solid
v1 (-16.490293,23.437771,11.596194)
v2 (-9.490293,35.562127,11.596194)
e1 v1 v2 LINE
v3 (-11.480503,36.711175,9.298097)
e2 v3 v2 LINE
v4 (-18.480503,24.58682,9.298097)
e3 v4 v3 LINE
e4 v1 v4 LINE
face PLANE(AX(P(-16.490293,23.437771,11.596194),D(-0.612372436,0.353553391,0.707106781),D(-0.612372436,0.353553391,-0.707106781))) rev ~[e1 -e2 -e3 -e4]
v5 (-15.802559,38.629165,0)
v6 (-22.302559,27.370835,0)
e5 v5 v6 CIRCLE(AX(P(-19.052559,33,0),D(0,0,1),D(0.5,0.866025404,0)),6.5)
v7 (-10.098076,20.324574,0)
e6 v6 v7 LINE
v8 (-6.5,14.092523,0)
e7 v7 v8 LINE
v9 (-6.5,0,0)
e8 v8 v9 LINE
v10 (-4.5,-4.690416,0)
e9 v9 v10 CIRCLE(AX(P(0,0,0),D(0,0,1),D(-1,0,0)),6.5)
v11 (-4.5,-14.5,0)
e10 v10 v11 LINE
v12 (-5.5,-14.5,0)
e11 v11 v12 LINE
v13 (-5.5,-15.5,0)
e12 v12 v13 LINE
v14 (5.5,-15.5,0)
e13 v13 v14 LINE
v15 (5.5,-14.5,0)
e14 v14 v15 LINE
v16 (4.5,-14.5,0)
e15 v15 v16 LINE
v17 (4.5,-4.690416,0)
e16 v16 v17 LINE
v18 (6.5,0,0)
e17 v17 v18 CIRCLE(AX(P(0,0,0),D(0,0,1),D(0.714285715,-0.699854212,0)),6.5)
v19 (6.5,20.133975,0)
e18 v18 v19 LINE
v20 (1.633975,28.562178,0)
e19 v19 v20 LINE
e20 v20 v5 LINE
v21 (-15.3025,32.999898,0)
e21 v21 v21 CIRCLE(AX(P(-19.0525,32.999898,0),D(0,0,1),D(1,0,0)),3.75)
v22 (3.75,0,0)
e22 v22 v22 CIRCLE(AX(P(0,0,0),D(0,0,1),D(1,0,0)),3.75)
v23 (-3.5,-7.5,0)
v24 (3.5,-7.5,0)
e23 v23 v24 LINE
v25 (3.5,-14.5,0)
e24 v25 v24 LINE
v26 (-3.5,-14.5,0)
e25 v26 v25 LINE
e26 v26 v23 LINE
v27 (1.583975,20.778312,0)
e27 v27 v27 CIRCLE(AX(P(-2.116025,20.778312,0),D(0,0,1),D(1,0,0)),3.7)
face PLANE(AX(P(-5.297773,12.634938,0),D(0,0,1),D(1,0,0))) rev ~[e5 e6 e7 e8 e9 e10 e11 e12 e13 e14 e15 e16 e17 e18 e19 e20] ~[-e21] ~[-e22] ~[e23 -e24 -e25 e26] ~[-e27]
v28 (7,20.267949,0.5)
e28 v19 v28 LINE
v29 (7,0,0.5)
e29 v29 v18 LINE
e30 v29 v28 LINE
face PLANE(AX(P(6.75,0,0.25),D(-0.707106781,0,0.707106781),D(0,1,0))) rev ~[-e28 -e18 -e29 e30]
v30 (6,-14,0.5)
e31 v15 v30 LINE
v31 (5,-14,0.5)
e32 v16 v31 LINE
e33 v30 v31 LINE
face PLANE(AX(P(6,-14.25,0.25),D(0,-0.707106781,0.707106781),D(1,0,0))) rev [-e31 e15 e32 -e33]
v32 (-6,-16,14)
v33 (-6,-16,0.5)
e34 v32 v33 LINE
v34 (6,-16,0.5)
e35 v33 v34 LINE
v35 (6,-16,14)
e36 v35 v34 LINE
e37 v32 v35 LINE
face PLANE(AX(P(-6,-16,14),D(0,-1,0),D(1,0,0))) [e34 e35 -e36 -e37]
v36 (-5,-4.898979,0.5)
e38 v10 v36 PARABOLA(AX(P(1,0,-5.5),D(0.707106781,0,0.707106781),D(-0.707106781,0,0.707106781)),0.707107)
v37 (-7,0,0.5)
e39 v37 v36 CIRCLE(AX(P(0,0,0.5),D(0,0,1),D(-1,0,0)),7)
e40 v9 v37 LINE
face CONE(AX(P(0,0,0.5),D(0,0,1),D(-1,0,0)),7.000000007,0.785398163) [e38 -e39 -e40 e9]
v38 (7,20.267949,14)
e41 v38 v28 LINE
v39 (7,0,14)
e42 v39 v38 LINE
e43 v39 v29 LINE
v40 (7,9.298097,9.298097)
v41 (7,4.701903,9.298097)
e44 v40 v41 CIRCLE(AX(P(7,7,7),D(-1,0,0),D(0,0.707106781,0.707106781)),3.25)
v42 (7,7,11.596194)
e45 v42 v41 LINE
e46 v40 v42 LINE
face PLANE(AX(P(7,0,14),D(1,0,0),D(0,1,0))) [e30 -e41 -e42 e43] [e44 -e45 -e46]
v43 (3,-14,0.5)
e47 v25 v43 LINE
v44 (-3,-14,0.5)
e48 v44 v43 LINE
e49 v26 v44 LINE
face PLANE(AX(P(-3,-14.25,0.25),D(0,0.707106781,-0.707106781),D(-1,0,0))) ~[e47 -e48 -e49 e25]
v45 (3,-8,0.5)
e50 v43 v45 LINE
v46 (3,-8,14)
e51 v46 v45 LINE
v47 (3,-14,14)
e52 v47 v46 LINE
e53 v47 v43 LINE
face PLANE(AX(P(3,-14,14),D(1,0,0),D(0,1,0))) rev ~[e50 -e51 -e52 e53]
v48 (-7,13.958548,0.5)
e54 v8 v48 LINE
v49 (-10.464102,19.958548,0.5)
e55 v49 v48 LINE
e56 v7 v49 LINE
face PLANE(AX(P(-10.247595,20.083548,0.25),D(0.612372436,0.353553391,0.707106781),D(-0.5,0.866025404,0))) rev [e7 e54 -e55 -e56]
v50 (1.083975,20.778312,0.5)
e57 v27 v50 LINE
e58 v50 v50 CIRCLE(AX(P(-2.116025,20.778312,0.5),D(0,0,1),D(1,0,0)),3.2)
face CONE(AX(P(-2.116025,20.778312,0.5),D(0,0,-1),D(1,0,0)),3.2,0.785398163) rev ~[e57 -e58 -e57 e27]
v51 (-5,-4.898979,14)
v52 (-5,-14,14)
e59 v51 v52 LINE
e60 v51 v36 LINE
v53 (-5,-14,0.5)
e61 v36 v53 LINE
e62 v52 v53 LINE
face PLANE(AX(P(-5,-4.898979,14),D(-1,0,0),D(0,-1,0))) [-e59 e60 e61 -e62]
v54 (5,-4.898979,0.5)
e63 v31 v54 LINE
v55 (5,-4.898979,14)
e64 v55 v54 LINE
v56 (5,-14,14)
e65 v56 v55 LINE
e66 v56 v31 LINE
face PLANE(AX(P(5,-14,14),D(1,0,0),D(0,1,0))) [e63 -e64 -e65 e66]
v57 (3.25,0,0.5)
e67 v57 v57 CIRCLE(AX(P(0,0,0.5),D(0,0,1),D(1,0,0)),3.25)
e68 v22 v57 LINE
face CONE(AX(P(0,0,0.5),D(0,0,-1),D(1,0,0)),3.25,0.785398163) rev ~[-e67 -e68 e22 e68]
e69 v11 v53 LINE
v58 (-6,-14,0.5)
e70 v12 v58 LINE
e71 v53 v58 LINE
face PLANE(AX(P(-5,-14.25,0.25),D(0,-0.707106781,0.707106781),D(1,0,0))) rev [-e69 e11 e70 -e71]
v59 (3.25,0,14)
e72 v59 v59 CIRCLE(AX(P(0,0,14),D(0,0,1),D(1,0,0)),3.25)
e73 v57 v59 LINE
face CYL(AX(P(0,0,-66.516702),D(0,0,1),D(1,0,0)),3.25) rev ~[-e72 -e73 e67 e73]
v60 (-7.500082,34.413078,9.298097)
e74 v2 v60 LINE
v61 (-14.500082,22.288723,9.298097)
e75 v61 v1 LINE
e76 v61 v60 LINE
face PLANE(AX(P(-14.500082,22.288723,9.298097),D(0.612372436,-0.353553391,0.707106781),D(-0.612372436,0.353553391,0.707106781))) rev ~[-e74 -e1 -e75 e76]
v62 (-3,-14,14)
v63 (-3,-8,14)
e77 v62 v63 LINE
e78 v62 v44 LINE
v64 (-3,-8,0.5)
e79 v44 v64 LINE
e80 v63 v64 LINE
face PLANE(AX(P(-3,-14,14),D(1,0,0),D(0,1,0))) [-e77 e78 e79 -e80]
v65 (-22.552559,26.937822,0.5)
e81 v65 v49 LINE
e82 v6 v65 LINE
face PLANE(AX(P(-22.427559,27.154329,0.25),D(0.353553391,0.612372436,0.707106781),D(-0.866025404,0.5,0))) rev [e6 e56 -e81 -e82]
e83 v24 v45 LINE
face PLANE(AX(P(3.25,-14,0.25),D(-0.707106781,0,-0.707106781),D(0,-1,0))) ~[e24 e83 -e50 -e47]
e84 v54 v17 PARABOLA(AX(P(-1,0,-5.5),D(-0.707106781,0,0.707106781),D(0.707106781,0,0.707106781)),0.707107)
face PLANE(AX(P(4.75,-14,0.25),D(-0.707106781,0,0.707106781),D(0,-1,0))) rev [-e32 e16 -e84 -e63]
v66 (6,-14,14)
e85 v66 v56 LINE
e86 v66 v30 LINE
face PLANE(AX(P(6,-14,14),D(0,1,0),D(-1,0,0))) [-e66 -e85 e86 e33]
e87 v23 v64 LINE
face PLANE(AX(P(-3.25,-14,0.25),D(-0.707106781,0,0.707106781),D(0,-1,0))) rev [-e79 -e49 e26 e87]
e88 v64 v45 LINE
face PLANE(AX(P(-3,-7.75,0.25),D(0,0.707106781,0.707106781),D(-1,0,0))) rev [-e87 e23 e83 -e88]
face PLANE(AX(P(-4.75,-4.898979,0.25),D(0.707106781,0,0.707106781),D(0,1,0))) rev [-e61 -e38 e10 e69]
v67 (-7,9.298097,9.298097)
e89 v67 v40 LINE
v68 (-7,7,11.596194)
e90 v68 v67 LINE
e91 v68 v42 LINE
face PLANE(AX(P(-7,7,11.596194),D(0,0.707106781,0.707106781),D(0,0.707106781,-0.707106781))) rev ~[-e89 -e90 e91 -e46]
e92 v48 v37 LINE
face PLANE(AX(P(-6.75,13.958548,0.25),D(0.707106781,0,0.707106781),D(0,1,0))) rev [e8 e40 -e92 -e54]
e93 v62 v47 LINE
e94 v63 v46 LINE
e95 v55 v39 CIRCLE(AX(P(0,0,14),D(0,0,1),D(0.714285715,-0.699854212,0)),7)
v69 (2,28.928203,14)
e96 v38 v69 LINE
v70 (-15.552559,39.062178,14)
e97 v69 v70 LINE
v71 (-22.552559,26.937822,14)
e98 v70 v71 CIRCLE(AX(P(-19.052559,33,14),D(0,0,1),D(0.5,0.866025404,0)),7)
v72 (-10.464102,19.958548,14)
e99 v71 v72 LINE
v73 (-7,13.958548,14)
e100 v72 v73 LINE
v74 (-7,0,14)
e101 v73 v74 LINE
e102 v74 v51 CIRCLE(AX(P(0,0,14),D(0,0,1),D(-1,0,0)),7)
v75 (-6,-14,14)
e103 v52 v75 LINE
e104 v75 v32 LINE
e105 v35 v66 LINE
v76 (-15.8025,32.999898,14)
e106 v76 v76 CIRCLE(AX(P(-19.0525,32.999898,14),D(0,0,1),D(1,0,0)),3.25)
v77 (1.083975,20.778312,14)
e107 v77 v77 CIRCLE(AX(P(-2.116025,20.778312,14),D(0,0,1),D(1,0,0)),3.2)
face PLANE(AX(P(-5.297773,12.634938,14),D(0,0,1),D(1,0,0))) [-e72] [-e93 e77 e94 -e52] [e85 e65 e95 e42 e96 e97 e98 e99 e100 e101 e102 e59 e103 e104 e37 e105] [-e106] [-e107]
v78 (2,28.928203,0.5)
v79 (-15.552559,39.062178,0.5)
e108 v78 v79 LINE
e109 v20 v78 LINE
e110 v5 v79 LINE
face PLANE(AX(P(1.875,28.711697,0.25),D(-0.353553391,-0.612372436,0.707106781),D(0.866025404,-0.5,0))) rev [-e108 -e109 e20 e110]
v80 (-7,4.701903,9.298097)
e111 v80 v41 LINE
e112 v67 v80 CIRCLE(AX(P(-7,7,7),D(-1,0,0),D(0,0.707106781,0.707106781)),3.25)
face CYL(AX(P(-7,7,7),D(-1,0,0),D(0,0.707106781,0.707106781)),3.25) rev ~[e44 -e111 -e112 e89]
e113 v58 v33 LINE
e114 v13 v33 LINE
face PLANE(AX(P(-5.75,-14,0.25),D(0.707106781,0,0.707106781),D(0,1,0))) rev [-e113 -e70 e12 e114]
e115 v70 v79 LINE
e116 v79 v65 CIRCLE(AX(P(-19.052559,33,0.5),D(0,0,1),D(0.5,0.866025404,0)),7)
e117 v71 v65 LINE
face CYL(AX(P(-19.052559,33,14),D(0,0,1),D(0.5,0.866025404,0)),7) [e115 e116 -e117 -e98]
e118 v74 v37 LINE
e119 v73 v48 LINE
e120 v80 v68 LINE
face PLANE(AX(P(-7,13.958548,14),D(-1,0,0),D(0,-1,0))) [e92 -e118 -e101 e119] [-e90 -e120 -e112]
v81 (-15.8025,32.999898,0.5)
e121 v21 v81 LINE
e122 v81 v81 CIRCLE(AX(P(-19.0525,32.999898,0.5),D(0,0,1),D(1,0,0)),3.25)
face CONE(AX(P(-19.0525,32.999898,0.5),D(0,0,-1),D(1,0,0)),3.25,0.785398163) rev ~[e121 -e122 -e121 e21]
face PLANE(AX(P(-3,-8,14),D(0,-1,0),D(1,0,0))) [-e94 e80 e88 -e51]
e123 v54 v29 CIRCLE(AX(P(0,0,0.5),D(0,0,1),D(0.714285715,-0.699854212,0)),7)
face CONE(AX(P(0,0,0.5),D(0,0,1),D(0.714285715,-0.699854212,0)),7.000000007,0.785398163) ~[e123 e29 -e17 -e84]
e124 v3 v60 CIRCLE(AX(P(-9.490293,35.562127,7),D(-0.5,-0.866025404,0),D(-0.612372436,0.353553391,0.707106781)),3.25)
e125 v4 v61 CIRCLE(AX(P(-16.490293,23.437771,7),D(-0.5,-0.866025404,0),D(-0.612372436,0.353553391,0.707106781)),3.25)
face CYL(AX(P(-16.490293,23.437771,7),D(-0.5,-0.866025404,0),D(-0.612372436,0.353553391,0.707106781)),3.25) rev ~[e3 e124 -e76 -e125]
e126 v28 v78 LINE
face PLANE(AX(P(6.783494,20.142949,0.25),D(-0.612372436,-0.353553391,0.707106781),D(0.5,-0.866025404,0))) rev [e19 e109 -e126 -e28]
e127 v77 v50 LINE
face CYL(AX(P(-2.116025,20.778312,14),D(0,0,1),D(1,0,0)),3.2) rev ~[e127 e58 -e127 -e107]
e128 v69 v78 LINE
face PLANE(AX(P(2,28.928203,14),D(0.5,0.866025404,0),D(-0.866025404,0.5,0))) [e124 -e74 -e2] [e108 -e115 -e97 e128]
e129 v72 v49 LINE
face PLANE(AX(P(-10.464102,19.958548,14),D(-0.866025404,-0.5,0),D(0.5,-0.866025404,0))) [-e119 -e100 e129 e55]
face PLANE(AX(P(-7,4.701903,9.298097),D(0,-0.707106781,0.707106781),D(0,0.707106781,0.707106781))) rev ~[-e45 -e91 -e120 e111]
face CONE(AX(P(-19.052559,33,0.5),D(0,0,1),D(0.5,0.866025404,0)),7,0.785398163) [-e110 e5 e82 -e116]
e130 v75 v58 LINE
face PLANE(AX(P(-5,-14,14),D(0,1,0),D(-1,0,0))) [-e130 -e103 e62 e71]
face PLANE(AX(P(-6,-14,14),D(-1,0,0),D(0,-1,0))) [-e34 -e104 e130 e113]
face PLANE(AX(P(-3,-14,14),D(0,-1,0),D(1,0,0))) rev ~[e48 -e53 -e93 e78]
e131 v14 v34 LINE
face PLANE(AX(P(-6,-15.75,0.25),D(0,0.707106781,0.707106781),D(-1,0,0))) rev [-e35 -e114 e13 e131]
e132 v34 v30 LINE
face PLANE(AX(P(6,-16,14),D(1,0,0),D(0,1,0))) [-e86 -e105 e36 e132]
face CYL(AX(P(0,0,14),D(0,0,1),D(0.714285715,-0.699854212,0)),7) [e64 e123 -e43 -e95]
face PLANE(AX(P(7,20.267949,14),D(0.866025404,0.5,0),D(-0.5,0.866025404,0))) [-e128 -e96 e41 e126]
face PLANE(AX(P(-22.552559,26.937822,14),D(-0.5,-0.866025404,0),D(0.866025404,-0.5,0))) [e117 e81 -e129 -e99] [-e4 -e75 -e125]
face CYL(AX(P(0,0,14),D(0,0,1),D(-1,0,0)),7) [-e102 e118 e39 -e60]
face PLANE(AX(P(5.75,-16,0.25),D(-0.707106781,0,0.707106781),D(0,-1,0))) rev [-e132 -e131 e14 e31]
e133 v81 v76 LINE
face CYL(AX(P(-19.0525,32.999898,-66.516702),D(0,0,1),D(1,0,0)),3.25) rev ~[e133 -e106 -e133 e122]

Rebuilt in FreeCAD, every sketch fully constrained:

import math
import FreeCAD as App
import Part
import Sketcher
Q = App.Units.Quantity


def edges_at(feature, points):
    """Names of the edges that pass closest to the given points."""
    edges = feature.Shape.Edges
    near = lambda p: min(range(len(edges)), key=lambda i: edges[i].distToShape(Part.Vertex(*p))[0])
    return sorted({f"Edge{near(p) + 1}" for p in points})


def add_polygon(sketch, points):
    """Adds a closed chain of lines whose ends are joined by coincident constraints."""
    first, n = sketch.GeometryCount, len(points)
    for a, b in zip(points, points[1:] + points[:1]):
        sketch.addGeometry(Part.LineSegment(App.Vector(*a, 0), App.Vector(*b, 0)), False)
    for i in range(n):
        sketch.addConstraint(Sketcher.Constraint("Coincident", first + i, 2, first + (i + 1) % n, 1))

doc = App.newDocument("Part")
params = doc.addObject("Spreadsheet::Sheet", "Params")
for row, (alias, value) in enumerate([
    ("sketch1_radius", "7 mm"),
    ("sketch1_width", "1 mm"),
    ("sketch1_width2", "12 mm"),
    ("sketch1_width3", "6 mm"),
    ("sketch1_height", "2 mm"),
    ("pad1_length", "14 mm"),
    ("sketch2_diameter", "6.5 mm"),
    ("hole_diameter", "6.5 mm"),
    ("sketch3_diameter", "6.5 mm"),
    ("hole2_diameter", "6.5 mm"),
    ("sketch4_radius", "3.25 mm"),
    ("sketch5_radius", "3.25 mm"),
    ("sketch6_diameter", "6.4 mm"),
    ("chamfer_size", "0.5 mm"),
], start=1):
    params.set(f"A{row}", alias)
    params.set(f"B{row}", "=" + value)
    params.setAlias(f"B{row}", alias)

body = doc.addObject("PartDesign::Body", "Body")

sketch1 = body.newObject("Sketcher::SketchObject", "Sketch")
sketch1.AttachmentSupport = (doc.getObject("XY_Plane"), [""])
sketch1.MapMode = "FlatFace"
sketch1.AttachmentOffset = App.Placement(App.Vector(0, 0, 14), App.Rotation())
sketch1.addGeometry(Part.LineSegment(App.Vector(7, 0, 0), App.Vector(7, 20.3, 0)), False)
sketch1.addGeometry(Part.LineSegment(App.Vector(7, 20.3, 0), App.Vector(2, 28.9, 0)), False)
sketch1.addGeometry(Part.LineSegment(App.Vector(2, 28.9, 0), App.Vector(-15.6, 39.1, 0)), False)
sketch1.addGeometry(Part.ArcOfCircle(Part.Circle(App.Vector(-19.1, 33, 0), App.Vector(0, 0, 1), 7), math.radians(60), math.radians(240)), False)
sketch1.addGeometry(Part.LineSegment(App.Vector(-22.6, 26.9, 0), App.Vector(-10.5, 20, 0)), False)
sketch1.addGeometry(Part.LineSegment(App.Vector(-10.5, 20, 0), App.Vector(-7, 14, 0)), False)
sketch1.addGeometry(Part.LineSegment(App.Vector(-7, 14, 0), App.Vector(-7, 0, 0)), False)
sketch1.addGeometry(Part.ArcOfCircle(Part.Circle(App.Vector(0, 0, 0), App.Vector(0, 0, 1), 7), math.radians(-180), math.radians(-136)), False)
sketch1.addGeometry(Part.LineSegment(App.Vector(-5, -4.9, 0), App.Vector(-5, -14, 0)), False)
sketch1.addGeometry(Part.LineSegment(App.Vector(-5, -14, 0), App.Vector(-6, -14, 0)), False)
sketch1.addGeometry(Part.LineSegment(App.Vector(-6, -14, 0), App.Vector(-6, -16, 0)), False)
sketch1.addGeometry(Part.LineSegment(App.Vector(-6, -16, 0), App.Vector(6, -16, 0)), False)
sketch1.addGeometry(Part.LineSegment(App.Vector(6, -16, 0), App.Vector(6, -14, 0)), False)
sketch1.addGeometry(Part.LineSegment(App.Vector(6, -14, 0), App.Vector(5, -14, 0)), False)
sketch1.addGeometry(Part.LineSegment(App.Vector(5, -14, 0), App.Vector(5, -4.9, 0)), False)
sketch1.addGeometry(Part.ArcOfCircle(Part.Circle(App.Vector(0, 0, 0), App.Vector(0, 0, 1), 7), math.radians(-44), math.radians(0)), False)
add_polygon(sketch1, [(3, -14), (-3, -14), (-3, -8), (3, -8)])
sketch1.addConstraint([
    Sketcher.Constraint("Coincident", 0, 2, 1, 1),
    Sketcher.Constraint("Coincident", 1, 2, 2, 1),
    Sketcher.Constraint("Tangent", 2, 2, 3, 1),
    Sketcher.Constraint("Tangent", 3, 2, 4, 1),
    Sketcher.Constraint("Coincident", 4, 2, 5, 1),
    Sketcher.Constraint("Coincident", 5, 2, 6, 1),
    Sketcher.Constraint("Tangent", 6, 2, 7, 1),
    Sketcher.Constraint("Coincident", 7, 2, 8, 1),
    Sketcher.Constraint("Coincident", 8, 2, 9, 1),
    Sketcher.Constraint("Coincident", 9, 2, 10, 1),
    Sketcher.Constraint("Coincident", 10, 2, 11, 1),
    Sketcher.Constraint("Coincident", 11, 2, 12, 1),
    Sketcher.Constraint("Coincident", 12, 2, 13, 1),
    Sketcher.Constraint("Coincident", 13, 2, 14, 1),
    Sketcher.Constraint("Coincident", 14, 2, 15, 1),
    Sketcher.Constraint("Tangent", 15, 2, 0, 1),
    Sketcher.Constraint("Vertical", 0),
    Sketcher.Constraint("Vertical", 6),
    Sketcher.Constraint("Vertical", 8),
    Sketcher.Constraint("Horizontal", 9),
    Sketcher.Constraint("Vertical", 10),
    Sketcher.Constraint("Horizontal", 11),
    Sketcher.Constraint("Vertical", 12),
    Sketcher.Constraint("Horizontal", 13),
    Sketcher.Constraint("Vertical", 14),
    Sketcher.Constraint("Horizontal", 16),
    Sketcher.Constraint("Vertical", 17),
    Sketcher.Constraint("Horizontal", 18),
    Sketcher.Constraint("Vertical", 19),
    Sketcher.Constraint("Coincident", 7, 3, -1, 1),
    Sketcher.Constraint("Coincident", 15, 3, -1, 1),
    Sketcher.Constraint("Equal", 3, 7),
    Sketcher.Constraint("Equal", 7, 15),
    Sketcher.Constraint("Symmetric", 9, 2, 12, 2, -2),
    Sketcher.Constraint("Parallel", 2, 4),
    Sketcher.Constraint("Parallel", 1, 5),
    Sketcher.Constraint("Horizontal", 7, 2, 14, 2),
    Sketcher.Constraint("Horizontal", 13, 2, 16, 2),
    Sketcher.Constraint("Equal", 18, 17),
    Sketcher.Constraint("Radius", 3, 7.0),
    Sketcher.Constraint("DistanceX", 9, 2, 9, 1, 1.0),
    Sketcher.Constraint("DistanceX", 11, 1, 11, 2, 12.0),
    Sketcher.Constraint("DistanceX", 16, 2, 16, 1, 6.0),
    Sketcher.Constraint("DistanceY", 10, 2, 10, 1, 2.0),
    Sketcher.Constraint("Angle", 1, Q("120 deg")),
    Sketcher.Constraint("Angle", 2, Q("150 deg")),
    Sketcher.Constraint("Distance", 1, 10.0),
    Sketcher.Constraint("DistanceY", -1, 1, 3, 3, 33.0),
    Sketcher.Constraint("DistanceY", 8, 2, -1, 1, 14.0),
    Sketcher.Constraint("DistanceX", 16, 2, -1, 1, 3.0),
    Sketcher.Constraint("DistanceY", 5, 2, 4, 2, 6.0),
    Sketcher.Constraint("DistanceY", 0, 1, 0, 2, 20.267949),
])
sketch1.setExpression("Constraints[43]", "Params.sketch1_radius")
sketch1.setExpression("Constraints[44]", "Params.sketch1_width")
sketch1.setExpression("Constraints[45]", "Params.sketch1_width2")
sketch1.setExpression("Constraints[46]", "Params.sketch1_width3")
sketch1.setExpression("Constraints[47]", "Params.sketch1_height")
pad1 = body.newObject("PartDesign::Pad", "Pad")
pad1.Profile = sketch1
pad1.setExpression("Length", "Params.pad1_length")
pad1.Reversed = True

sketch2 = body.newObject("Sketcher::SketchObject", "Sketch001")
sketch2.AttachmentSupport = (doc.getObject("XY_Plane"), [""])
sketch2.MapMode = "FlatFace"
sketch2.addGeometry(Part.Circle(App.Vector(-19.1, 33, 0), App.Vector(0, 0, 1), 3.2), False)
sketch2.addConstraint([
    Sketcher.Constraint("Diameter", 0, 6.5),
    Sketcher.Constraint("DistanceX", 0, 3, -1, 1, 19.0525),
    Sketcher.Constraint("DistanceY", -1, 1, 0, 3, 32.999898),
])
sketch2.setExpression("Constraints[0]", "Params.sketch2_diameter")
doc.recompute()
hole = body.newObject("PartDesign::Hole", "Hole")
hole.Profile = sketch2
hole.ThreadType = "None"
hole.setExpression("Diameter", "Params.hole_diameter")
hole.DepthType = "ThroughAll"
hole.Reversed = True

sketch3 = body.newObject("Sketcher::SketchObject", "Sketch002")
sketch3.AttachmentSupport = (doc.getObject("XY_Plane"), [""])
sketch3.MapMode = "FlatFace"
sketch3.addGeometry(Part.Circle(App.Vector(0, 0, 0), App.Vector(0, 0, 1), 3.2), False)
sketch3.addConstraint([
    Sketcher.Constraint("Coincident", 0, 3, -1, 1),
    Sketcher.Constraint("Diameter", 0, 6.5),
])
sketch3.setExpression("Constraints[1]", "Params.sketch3_diameter")
doc.recompute()
hole2 = body.newObject("PartDesign::Hole", "Hole001")
hole2.Profile = sketch3
hole2.ThreadType = "None"
hole2.setExpression("Diameter", "Params.hole2_diameter")
hole2.DepthType = "ThroughAll"
hole2.Reversed = True

sketch4 = body.newObject("Sketcher::SketchObject", "Sketch003")
sketch4.AttachmentSupport = (doc.getObject("YZ_Plane"), [""])
sketch4.MapMode = "FlatFace"
sketch4.AttachmentOffset = App.Placement(App.Vector(0, 0, -7), App.Rotation())
sketch4.addGeometry([
    Part.LineSegment(App.Vector(4.7, 9.3, 0), App.Vector(7, 11.6, 0)),
    Part.LineSegment(App.Vector(7, 11.6, 0), App.Vector(9.3, 9.3, 0)),
    Part.ArcOfCircle(Part.Circle(App.Vector(7, 7, 0), App.Vector(0, 0, 1), 3.2), math.radians(135), math.radians(405)),
], False)
sketch4.addConstraint([
    Sketcher.Constraint("Coincident", 0, 2, 1, 1),
    Sketcher.Constraint("Tangent", 1, 2, 2, 2),
    Sketcher.Constraint("Tangent", 2, 1, 0, 1),
    Sketcher.Constraint("Perpendicular", 0, 1),
    Sketcher.Constraint("Horizontal", 1, 2, 2, 1),
    Sketcher.Constraint("Radius", 2, 3.25),
    Sketcher.Constraint("DistanceX", -1, 1, 2, 3, 7.0),
    Sketcher.Constraint("DistanceY", -1, 1, 2, 3, 7.0),
])
sketch4.setExpression("Constraints[5]", "Params.sketch4_radius")
pocket1 = body.newObject("PartDesign::Pocket", "Pocket")
pocket1.Profile = sketch4
pocket1.Type = "ThroughAll"
pocket1.Reversed = True

sketch5 = body.newObject("Sketcher::SketchObject", "Sketch004")
sketch5.Placement = App.Placement(App.Vector(6.026279, 10.437822, 0), App.Rotation(App.Vector(0.866025404, -0.5, 0), App.Vector(0, 0, 1), App.Vector(-0.5, -0.866025404, 0), "ZXY"))
sketch5.addGeometry([
    Part.LineSegment(App.Vector(-26, 11.6, 0), App.Vector(-28.3, 9.3, 0)),
    Part.ArcOfCircle(Part.Circle(App.Vector(-26, 7, 0), App.Vector(0, 0, 1), 3.2), math.radians(135), math.radians(405)),
    Part.LineSegment(App.Vector(-23.7, 9.3, 0), App.Vector(-26, 11.6, 0)),
], False)
sketch5.addConstraint([
    Sketcher.Constraint("Tangent", 0, 2, 1, 1),
    Sketcher.Constraint("Tangent", 1, 2, 2, 1),
    Sketcher.Constraint("Coincident", 2, 2, 0, 1),
    Sketcher.Constraint("Perpendicular", 0, 2),
    Sketcher.Constraint("Horizontal", 0, 2, 1, 2),
    Sketcher.Constraint("Radius", 1, 3.25),
    Sketcher.Constraint("DistanceY", -1, 1, 1, 3, 7.0),
    Sketcher.Constraint("DistanceX", 1, 3, -1, 1, 25.999898),
])
sketch5.setExpression("Constraints[5]", "Params.sketch5_radius")
pocket2 = body.newObject("PartDesign::Pocket", "Pocket001")
pocket2.Profile = sketch5
pocket2.Type = "ThroughAll"

sketch6 = body.newObject("Sketcher::SketchObject", "Sketch005")
sketch6.AttachmentSupport = (doc.getObject("XY_Plane"), [""])
sketch6.MapMode = "FlatFace"
sketch6.AttachmentOffset = App.Placement(App.Vector(0, 0, 14), App.Rotation())
sketch6.addGeometry(Part.Circle(App.Vector(-2.1, 20.8, 0), App.Vector(0, 0, 1), 3.2), False)
sketch6.addConstraint([
    Sketcher.Constraint("Diameter", 0, 6.4),
    Sketcher.Constraint("DistanceX", 0, 3, -1, 1, 2.116025),
    Sketcher.Constraint("DistanceY", -1, 1, 0, 3, 20.778312),
])
sketch6.setExpression("Constraints[0]", "Params.sketch6_diameter")
pocket3 = body.newObject("PartDesign::Pocket", "Pocket002")
pocket3.Profile = sketch6
pocket3.Type = "ThroughAll"
doc.recompute()

chamfer = body.newObject("PartDesign::Chamfer", "Chamfer")
chamfer.Base = (pocket3, edges_at(pocket3, [
    (4.5, 24.598, 0),
    (-6.776, 33.995, 0),
    (-25.115, 36.5, 0),
    (-16.508, 23.448, 0),
    (-8.732, 16.959, 0),
    (-7, 6.979, 0),
    (-6.481, -2.646, 0),
    (-5, -9.449, 0),
    (-5.5, -14, 0),
    (-6, -15, 0),
    (6.481, -2.646, 0),
    (0, -16, 0),
    (-3, -11, 0),
    (0, -8, 0),
    (3, -11, 0),
    (0, -14, 0),
    (6, -15, 0),
    (5.5, -14, 0),
    (5, -9.449, 0),
    (-22.302, 33, 0),
    (-3.25, 0, 0),
    (7, 10.134, 0),
    (-5.316, 20.778, 0),
]))
chamfer.setExpression("Size", "Params.chamfer_size")

doc.recompute()
